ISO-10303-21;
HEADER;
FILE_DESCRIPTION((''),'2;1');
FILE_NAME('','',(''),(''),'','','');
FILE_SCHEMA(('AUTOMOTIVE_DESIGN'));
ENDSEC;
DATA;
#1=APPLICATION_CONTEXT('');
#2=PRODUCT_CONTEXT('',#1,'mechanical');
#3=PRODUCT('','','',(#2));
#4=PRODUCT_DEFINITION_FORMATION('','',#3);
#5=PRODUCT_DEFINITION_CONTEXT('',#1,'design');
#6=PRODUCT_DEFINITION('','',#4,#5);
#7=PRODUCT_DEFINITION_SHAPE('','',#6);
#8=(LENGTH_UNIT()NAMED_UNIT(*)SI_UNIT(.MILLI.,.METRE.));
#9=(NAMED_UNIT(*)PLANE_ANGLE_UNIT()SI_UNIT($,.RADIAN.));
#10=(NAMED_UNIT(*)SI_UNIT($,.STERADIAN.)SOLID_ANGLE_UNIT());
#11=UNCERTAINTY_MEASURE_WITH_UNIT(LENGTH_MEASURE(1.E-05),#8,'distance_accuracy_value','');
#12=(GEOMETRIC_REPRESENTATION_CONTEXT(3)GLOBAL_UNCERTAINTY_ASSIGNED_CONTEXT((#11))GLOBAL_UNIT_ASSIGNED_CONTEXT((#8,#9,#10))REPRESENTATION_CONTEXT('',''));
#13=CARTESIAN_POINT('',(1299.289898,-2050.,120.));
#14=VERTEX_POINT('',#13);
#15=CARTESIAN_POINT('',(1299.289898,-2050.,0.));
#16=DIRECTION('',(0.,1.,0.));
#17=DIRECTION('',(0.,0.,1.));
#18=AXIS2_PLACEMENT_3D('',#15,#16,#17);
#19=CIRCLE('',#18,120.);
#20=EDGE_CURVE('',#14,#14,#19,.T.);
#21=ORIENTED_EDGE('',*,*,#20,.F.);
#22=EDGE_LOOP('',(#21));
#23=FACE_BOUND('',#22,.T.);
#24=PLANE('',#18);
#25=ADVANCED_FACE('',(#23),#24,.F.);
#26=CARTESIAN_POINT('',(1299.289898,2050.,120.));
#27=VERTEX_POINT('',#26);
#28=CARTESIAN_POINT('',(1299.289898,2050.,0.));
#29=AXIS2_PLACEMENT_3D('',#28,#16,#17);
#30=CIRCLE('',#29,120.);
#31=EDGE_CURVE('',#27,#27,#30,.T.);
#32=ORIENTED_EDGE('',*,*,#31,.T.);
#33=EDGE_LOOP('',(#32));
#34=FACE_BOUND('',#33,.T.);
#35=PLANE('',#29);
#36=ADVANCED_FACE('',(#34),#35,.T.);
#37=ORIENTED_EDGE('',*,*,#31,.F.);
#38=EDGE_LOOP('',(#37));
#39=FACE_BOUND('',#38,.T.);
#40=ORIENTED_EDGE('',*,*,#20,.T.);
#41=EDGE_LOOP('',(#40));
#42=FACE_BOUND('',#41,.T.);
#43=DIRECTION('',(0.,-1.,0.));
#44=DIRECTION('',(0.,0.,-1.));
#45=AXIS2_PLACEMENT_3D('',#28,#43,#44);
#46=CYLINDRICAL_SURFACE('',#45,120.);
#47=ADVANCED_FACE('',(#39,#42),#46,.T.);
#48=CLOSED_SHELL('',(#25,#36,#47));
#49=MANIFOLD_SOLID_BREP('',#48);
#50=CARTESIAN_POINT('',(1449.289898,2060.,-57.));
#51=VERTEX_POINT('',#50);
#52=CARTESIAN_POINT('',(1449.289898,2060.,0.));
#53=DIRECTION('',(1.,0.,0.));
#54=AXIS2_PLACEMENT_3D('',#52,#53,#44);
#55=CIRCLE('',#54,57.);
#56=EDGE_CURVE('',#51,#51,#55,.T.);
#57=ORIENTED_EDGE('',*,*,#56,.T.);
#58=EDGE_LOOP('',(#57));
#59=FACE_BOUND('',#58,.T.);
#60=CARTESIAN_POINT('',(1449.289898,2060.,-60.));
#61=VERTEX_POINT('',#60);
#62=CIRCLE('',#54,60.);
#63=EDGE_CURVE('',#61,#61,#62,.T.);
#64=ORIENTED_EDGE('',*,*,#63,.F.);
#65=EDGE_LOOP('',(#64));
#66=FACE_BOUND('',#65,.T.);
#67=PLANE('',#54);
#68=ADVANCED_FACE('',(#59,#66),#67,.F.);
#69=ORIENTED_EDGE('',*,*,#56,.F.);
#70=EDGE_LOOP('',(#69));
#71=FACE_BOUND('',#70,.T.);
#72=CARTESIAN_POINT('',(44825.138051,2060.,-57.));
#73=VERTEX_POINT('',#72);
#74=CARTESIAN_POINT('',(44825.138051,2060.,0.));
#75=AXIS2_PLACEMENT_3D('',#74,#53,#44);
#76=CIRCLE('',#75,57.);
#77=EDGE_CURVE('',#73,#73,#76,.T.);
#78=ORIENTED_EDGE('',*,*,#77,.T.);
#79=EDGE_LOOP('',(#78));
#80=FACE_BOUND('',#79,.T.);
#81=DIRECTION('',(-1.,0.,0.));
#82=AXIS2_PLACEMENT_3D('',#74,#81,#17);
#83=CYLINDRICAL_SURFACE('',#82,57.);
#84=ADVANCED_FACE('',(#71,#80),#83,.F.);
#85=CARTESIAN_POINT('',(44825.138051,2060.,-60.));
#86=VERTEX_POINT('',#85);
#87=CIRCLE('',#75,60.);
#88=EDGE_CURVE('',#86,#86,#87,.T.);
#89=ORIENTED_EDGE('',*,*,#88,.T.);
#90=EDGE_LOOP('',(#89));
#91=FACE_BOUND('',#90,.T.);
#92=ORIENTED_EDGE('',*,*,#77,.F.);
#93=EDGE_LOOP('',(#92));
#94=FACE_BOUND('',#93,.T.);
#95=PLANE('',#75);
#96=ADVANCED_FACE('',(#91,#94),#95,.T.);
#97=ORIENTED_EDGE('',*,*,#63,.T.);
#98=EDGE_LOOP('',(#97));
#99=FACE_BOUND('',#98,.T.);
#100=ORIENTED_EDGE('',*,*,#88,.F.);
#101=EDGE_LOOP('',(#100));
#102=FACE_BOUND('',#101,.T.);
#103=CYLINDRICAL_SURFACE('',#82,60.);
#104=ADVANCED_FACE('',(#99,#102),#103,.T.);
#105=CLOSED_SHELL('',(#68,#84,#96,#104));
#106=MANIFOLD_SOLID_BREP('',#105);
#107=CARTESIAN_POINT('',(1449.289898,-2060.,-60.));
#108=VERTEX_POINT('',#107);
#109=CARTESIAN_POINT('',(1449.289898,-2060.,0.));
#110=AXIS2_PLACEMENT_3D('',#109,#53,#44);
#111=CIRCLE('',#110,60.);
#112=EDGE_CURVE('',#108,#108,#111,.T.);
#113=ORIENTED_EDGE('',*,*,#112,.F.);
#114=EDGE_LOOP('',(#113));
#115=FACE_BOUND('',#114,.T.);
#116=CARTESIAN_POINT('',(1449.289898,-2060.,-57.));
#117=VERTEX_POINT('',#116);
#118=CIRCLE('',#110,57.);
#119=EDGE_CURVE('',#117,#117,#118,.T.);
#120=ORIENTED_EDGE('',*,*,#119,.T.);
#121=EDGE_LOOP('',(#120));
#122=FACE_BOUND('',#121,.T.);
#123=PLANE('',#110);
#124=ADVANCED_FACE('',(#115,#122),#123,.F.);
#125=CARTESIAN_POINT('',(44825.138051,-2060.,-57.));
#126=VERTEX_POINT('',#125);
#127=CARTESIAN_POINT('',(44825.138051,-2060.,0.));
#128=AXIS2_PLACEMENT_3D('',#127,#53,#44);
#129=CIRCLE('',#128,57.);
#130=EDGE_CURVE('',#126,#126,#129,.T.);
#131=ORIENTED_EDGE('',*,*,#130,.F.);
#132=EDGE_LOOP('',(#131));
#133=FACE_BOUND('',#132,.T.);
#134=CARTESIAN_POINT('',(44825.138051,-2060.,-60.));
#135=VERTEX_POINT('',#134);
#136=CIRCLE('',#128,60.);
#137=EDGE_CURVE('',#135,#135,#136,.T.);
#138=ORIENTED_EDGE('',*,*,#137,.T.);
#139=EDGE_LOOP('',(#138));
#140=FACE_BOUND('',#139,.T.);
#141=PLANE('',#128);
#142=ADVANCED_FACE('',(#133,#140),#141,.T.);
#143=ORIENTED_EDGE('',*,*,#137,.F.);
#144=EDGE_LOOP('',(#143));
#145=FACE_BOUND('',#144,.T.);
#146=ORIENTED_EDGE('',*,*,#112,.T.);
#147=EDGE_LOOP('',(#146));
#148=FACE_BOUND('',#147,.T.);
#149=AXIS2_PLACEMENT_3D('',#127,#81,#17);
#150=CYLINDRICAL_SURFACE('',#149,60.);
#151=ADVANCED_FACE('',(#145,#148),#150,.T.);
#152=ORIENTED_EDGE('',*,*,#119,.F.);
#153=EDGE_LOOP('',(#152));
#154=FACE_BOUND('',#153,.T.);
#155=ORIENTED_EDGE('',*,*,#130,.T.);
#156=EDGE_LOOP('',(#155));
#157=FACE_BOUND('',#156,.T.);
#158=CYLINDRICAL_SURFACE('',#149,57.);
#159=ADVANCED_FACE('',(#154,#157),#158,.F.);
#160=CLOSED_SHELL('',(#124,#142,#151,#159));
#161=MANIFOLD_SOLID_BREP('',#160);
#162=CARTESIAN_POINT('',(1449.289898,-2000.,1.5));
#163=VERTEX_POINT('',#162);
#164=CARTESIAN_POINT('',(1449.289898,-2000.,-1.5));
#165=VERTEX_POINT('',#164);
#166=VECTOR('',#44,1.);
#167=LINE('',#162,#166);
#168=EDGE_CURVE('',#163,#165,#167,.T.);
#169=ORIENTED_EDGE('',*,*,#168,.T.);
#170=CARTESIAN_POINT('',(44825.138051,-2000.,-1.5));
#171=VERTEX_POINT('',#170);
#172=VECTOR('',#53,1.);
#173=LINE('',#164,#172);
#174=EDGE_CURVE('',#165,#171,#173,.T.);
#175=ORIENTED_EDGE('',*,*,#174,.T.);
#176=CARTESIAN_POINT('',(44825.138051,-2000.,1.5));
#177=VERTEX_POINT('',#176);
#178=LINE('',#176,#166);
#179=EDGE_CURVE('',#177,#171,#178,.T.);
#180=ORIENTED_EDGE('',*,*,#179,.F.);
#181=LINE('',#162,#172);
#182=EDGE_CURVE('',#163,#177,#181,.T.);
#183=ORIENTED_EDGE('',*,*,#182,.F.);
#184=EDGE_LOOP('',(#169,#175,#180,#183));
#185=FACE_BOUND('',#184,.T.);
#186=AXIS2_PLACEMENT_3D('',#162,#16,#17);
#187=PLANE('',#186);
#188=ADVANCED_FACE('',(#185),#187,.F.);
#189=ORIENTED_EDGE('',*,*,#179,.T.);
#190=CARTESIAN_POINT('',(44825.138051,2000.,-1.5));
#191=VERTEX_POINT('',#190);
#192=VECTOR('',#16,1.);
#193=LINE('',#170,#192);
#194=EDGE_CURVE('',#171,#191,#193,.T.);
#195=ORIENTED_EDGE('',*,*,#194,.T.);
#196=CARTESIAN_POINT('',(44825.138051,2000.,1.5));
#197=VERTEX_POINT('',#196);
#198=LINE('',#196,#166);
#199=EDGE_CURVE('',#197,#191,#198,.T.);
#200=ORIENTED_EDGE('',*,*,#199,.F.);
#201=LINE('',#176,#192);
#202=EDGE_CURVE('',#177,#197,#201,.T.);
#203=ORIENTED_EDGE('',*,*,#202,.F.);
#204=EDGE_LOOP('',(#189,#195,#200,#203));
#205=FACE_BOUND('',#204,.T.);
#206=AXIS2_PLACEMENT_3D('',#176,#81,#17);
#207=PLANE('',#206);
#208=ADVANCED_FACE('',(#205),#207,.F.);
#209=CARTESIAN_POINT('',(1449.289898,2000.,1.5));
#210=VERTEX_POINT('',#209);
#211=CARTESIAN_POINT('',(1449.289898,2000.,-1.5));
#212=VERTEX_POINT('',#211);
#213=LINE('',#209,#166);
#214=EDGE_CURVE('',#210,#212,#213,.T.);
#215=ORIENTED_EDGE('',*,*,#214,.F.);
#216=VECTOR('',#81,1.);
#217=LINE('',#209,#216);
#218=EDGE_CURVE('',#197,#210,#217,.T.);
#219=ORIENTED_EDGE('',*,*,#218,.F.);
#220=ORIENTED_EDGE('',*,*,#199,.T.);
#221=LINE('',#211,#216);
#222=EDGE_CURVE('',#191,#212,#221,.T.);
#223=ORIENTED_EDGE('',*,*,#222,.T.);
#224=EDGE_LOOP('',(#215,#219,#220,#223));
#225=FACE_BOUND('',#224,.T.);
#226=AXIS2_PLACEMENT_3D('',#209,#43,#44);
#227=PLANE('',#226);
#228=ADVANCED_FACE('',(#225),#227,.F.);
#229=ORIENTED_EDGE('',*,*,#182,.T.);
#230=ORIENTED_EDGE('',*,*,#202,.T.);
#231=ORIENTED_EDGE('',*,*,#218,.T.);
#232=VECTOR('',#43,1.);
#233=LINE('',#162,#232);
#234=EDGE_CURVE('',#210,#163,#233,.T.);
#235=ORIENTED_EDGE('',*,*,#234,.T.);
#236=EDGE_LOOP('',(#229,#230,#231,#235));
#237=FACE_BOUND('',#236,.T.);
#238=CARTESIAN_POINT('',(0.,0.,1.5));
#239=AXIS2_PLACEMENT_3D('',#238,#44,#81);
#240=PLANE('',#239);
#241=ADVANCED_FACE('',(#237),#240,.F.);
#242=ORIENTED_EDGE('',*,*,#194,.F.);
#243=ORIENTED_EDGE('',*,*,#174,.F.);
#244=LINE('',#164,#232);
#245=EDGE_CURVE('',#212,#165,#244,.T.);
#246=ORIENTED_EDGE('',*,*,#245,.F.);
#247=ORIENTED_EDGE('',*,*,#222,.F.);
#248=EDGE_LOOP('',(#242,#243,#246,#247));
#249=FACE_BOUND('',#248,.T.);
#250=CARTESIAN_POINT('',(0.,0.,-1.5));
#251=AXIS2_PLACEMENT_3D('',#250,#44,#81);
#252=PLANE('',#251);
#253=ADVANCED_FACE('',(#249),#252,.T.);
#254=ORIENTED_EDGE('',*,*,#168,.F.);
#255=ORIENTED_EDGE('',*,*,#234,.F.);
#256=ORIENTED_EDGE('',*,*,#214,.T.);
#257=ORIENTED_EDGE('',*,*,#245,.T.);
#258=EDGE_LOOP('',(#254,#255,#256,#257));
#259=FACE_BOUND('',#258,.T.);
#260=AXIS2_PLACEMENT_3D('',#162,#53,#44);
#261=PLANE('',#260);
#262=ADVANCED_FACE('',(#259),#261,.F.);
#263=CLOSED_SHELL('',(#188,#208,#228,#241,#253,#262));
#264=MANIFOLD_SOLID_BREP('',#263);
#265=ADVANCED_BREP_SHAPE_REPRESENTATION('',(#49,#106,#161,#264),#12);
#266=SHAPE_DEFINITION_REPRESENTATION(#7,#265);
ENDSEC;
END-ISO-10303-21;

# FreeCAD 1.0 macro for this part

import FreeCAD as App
import Part
import Sketcher


def add_polygon(sketch, points):
    """Adds a closed chain of lines whose ends are joined by coincident constraints."""
    first, n = sketch.GeometryCount, len(points)
    for a, b in zip(points, points[1:] + points[:1]):
        sketch.addGeometry(Part.LineSegment(App.Vector(*a, 0), App.Vector(*b, 0)), False)
    for i in range(n):
        sketch.addConstraint(Sketcher.Constraint("Coincident", first + i, 2, first + (i + 1) % n, 1))

doc = App.newDocument("Part")
body = doc.addObject("PartDesign::Body", "Body")

# Sketch on XZ plane
sketch1 = body.newObject("Sketcher::SketchObject", "Sketch")
sketch1.AttachmentSupport = (doc.getObject("XZ_Plane"), [""])
sketch1.MapMode = "FlatFace"
sketch1.AttachmentOffset = App.Placement(App.Vector(0, 0, 2050), App.Rotation())
sketch1.addGeometry(Part.Circle(App.Vector(1299.289898, 0, 0), App.Vector(0, 0, 1), 120), False)
sketch1.addConstraint(Sketcher.Constraint("PointOnObject", 0, 3, -1))
sketch1.addConstraint(Sketcher.Constraint("Diameter", 0, 240.0))
sketch1.addConstraint(Sketcher.Constraint("DistanceX", -1, 1, 0, 3, 1299.289898))
pad1 = body.newObject("PartDesign::Pad", "Pad")
pad1.Profile = sketch1
pad1.Length = 4100
pad1.Reversed = True
body2 = doc.addObject("PartDesign::Body", "Body001")

# Sketch on XY plane
sketch2 = body2.newObject("Sketcher::SketchObject", "Sketch001")
sketch2.AttachmentSupport = (doc.getObject("XY_Plane001"), [""])
sketch2.MapMode = "FlatFace"
sketch2.AttachmentOffset = App.Placement(App.Vector(0, 0, -1.5), App.Rotation())
add_polygon(sketch2, [(1449.289898, 2000), (1449.289898, -2000), (44825.138051, -2000), (44825.138051, 2000)])  # lines 0-3
sketch2.addConstraint(Sketcher.Constraint("Vertical", 0))
sketch2.addConstraint(Sketcher.Constraint("Horizontal", 1))
sketch2.addConstraint(Sketcher.Constraint("Vertical", 2))
sketch2.addConstraint(Sketcher.Constraint("Horizontal", 3))
sketch2.addConstraint(Sketcher.Constraint("DistanceY", 0, 2, 0, 1, 4000.0))
sketch2.addConstraint(Sketcher.Constraint("DistanceY", 0, 2, -1, 1, 2000.0))
sketch2.addConstraint(Sketcher.Constraint("DistanceX", 1, 1, 1, 2, 43375.848154))
sketch2.addConstraint(Sketcher.Constraint("DistanceX", -1, 1, 1, 2, 44825.138051))
pad2 = body2.newObject("PartDesign::Pad", "Pad001")
pad2.Profile = sketch2
pad2.Length = 3
body3 = doc.addObject("PartDesign::Body", "Body002")

# Sketch on YZ plane
sketch3 = body3.newObject("Sketcher::SketchObject", "Sketch002")
sketch3.AttachmentSupport = (doc.getObject("YZ_Plane002"), [""])
sketch3.MapMode = "FlatFace"
sketch3.AttachmentOffset = App.Placement(App.Vector(0, 0, 1449.289898), App.Rotation())
sketch3.addGeometry(Part.Circle(App.Vector(-2060, 0, 0), App.Vector(0, 0, 1), 60), False)
sketch3.addGeometry(Part.Circle(App.Vector(-2060, 0, 0), App.Vector(0, 0, 1), 57), False)
sketch3.addConstraint(Sketcher.Constraint("Coincident", 1, 3, 0, 3))
sketch3.addConstraint(Sketcher.Constraint("PointOnObject", 0, 3, -1))
sketch3.addConstraint(Sketcher.Constraint("Diameter", 0, 120.0))
sketch3.addConstraint(Sketcher.Constraint("Diameter", 1, 114.0))
sketch3.addConstraint(Sketcher.Constraint("DistanceX", 0, 3, -1, 1, 2060.0))
pad3 = body3.newObject("PartDesign::Pad", "Pad002")
pad3.Profile = sketch3
pad3.Length = 43375.848154
body4 = doc.addObject("PartDesign::Body", "Body003")

# Sketch on YZ plane
sketch4 = body4.newObject("Sketcher::SketchObject", "Sketch003")
sketch4.AttachmentSupport = (doc.getObject("YZ_Plane003"), [""])
sketch4.MapMode = "FlatFace"
sketch4.AttachmentOffset = App.Placement(App.Vector(0, 0, 1449.289898), App.Rotation())
sketch4.addGeometry(Part.Circle(App.Vector(2060, 0, 0), App.Vector(0, 0, 1), 60), False)
sketch4.addGeometry(Part.Circle(App.Vector(2060, 0, 0), App.Vector(0, 0, 1), 57), False)
sketch4.addConstraint(Sketcher.Constraint("Coincident", 1, 3, 0, 3))
sketch4.addConstraint(Sketcher.Constraint("PointOnObject", 0, 3, -1))
sketch4.addConstraint(Sketcher.Constraint("Diameter", 0, 120.0))
sketch4.addConstraint(Sketcher.Constraint("Diameter", 1, 114.0))
sketch4.addConstraint(Sketcher.Constraint("DistanceX", -1, 1, 0, 3, 2060.0))
pad4 = body4.newObject("PartDesign::Pad", "Pad003")
pad4.Profile = sketch4
pad4.Length = 43375.848154

doc.recompute()
